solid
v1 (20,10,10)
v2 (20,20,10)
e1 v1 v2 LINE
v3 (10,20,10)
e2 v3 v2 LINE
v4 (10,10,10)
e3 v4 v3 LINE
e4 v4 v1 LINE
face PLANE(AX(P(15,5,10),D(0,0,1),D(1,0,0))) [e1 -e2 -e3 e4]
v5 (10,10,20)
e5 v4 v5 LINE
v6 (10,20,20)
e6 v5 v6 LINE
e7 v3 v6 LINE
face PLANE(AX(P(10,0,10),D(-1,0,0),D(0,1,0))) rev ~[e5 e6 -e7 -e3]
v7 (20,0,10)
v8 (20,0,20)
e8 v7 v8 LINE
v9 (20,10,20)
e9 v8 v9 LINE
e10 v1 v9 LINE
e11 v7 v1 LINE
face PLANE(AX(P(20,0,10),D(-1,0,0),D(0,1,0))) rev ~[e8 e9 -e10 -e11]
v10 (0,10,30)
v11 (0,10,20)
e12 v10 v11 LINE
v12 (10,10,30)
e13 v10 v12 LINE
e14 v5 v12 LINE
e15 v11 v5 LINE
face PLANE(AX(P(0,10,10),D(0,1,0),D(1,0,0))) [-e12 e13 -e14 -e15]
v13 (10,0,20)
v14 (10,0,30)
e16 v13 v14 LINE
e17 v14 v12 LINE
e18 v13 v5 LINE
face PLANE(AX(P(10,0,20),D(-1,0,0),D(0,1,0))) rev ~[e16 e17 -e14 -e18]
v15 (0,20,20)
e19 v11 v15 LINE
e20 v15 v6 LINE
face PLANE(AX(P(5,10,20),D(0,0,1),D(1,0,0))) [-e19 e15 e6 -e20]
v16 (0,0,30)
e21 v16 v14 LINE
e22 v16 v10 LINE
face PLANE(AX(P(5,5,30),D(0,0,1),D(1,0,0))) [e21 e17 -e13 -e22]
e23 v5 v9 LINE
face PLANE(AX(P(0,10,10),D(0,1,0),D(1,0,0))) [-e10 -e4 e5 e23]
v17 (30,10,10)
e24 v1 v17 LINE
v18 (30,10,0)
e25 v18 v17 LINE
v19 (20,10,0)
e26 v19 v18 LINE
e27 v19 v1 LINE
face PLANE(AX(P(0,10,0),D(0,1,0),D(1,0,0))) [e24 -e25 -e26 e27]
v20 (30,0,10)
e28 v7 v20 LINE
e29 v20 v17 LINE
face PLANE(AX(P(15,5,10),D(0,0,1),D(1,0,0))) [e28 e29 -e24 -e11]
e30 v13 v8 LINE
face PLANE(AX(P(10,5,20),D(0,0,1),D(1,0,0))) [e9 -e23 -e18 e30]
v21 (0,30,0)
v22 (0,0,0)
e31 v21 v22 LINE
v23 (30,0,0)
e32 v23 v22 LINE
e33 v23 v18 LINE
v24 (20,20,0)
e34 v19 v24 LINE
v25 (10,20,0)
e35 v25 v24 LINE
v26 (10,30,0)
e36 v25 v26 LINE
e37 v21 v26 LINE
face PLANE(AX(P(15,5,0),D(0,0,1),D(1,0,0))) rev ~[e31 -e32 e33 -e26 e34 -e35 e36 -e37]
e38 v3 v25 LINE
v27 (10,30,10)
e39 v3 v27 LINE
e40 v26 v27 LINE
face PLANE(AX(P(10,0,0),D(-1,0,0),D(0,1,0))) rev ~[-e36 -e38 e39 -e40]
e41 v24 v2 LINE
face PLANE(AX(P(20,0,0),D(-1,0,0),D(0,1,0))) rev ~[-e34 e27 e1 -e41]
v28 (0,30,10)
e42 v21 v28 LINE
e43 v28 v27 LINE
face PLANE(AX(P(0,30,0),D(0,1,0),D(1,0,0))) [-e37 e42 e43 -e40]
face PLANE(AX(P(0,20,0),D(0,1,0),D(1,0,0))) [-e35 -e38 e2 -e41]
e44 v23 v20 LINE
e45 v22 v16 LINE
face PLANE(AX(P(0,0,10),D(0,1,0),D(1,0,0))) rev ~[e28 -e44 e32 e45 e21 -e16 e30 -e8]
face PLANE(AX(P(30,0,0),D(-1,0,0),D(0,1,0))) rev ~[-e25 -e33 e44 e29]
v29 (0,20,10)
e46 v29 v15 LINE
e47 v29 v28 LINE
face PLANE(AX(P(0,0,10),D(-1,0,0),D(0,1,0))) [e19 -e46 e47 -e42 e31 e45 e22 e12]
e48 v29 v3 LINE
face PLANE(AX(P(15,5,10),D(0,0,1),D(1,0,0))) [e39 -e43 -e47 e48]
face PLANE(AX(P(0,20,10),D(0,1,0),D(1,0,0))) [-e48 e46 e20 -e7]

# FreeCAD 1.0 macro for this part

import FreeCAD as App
import Part
import Sketcher

V = App.Vector
Q = App.Units.Quantity

doc = App.newDocument("Part")
body = doc.addObject("PartDesign::Body", "Body")

sketch1 = body.newObject("Sketcher::SketchObject", "Sketch")
sketch1.AttachmentSupport = (doc.getObject("XY_Plane"), [""])
sketch1.MapMode = "FlatFace"
sketch1.addGeometry(Part.LineSegment(V(0, 10, 0), V(0, 0, 0)), False)
sketch1.addGeometry(Part.LineSegment(V(0, 0, 0), V(30, 0, 0)), False)
sketch1.addGeometry(Part.LineSegment(V(30, 0, 0), V(30, 10, 0)), False)
sketch1.addGeometry(Part.LineSegment(V(30, 10, 0), V(0, 10, 0)), False)
sketch1.addConstraint(Sketcher.Constraint("Coincident", 0, 2, 1, 1))
sketch1.addConstraint(Sketcher.Constraint("Coincident", 1, 2, 2, 1))
sketch1.addConstraint(Sketcher.Constraint("Coincident", 2, 2, 3, 1))
sketch1.addConstraint(Sketcher.Constraint("Coincident", 3, 2, 0, 1))
sketch1.addConstraint(Sketcher.Constraint("Vertical", 0))
sketch1.addConstraint(Sketcher.Constraint("Horizontal", 1))
sketch1.addConstraint(Sketcher.Constraint("Vertical", 2))
sketch1.addConstraint(Sketcher.Constraint("Horizontal", 3))
sketch1.addConstraint(Sketcher.Constraint("Coincident", 0, 2, -1, 1))
sketch1.addConstraint(Sketcher.Constraint("DistanceX", 1, 1, 1, 2, Q("30 mm")))
sketch1.addConstraint(Sketcher.Constraint("DistanceY", 0, 2, 0, 1, Q("10 mm")))
pad1 = body.newObject("PartDesign::Pad", "Pad")
pad1.Profile = sketch1
pad1.Length = 10
body2 = doc.addObject("PartDesign::Body", "Body001")

sketch2 = body2.newObject("Sketcher::SketchObject", "Sketch001")
sketch2.AttachmentSupport = (doc.getObject("XY_Plane001"), [""])
sketch2.MapMode = "FlatFace"
sketch2.addGeometry(Part.LineSegment(V(0, 30, 0), V(0, 0, 0)), False)
sketch2.addGeometry(Part.LineSegment(V(0, 0, 0), V(10, 0, 0)), False)
sketch2.addGeometry(Part.LineSegment(V(10, 0, 0), V(10, 30, 0)), False)
sketch2.addGeometry(Part.LineSegment(V(10, 30, 0), V(0, 30, 0)), False)
sketch2.addConstraint(Sketcher.Constraint("Coincident", 0, 2, 1, 1))
sketch2.addConstraint(Sketcher.Constraint("Coincident", 1, 2, 2, 1))
sketch2.addConstraint(Sketcher.Constraint("Coincident", 2, 2, 3, 1))
sketch2.addConstraint(Sketcher.Constraint("Coincident", 3, 2, 0, 1))
sketch2.addConstraint(Sketcher.Constraint("Vertical", 0))
sketch2.addConstraint(Sketcher.Constraint("Horizontal", 1))
sketch2.addConstraint(Sketcher.Constraint("Vertical", 2))
sketch2.addConstraint(Sketcher.Constraint("Horizontal", 3))
sketch2.addConstraint(Sketcher.Constraint("Coincident", 0, 2, -1, 1))
sketch2.addConstraint(Sketcher.Constraint("DistanceX", 1, 1, 1, 2, Q("10 mm")))
sketch2.addConstraint(Sketcher.Constraint("DistanceY", 0, 2, 0, 1, Q("30 mm")))
pad2 = body2.newObject("PartDesign::Pad", "Pad001")
pad2.Profile = sketch2
pad2.Length = 10
body3 = doc.addObject("PartDesign::Body", "Body002")

sketch3 = body3.newObject("Sketcher::SketchObject", "Sketch002")
sketch3.AttachmentSupport = (doc.getObject("XY_Plane002"), [""])
sketch3.MapMode = "FlatFace"
sketch3.addGeometry(Part.LineSegment(V(0, 20, 0), V(0, 0, 0)), False)
sketch3.addGeometry(Part.LineSegment(V(0, 0, 0), V(20, 0, 0)), False)
sketch3.addGeometry(Part.LineSegment(V(20, 0, 0), V(20, 20, 0)), False)
sketch3.addGeometry(Part.LineSegment(V(20, 20, 0), V(0, 20, 0)), False)
sketch3.addConstraint(Sketcher.Constraint("Coincident", 0, 2, 1, 1))
sketch3.addConstraint(Sketcher.Constraint("Coincident", 1, 2, 2, 1))
sketch3.addConstraint(Sketcher.Constraint("Coincident", 2, 2, 3, 1))
sketch3.addConstraint(Sketcher.Constraint("Coincident", 3, 2, 0, 1))
sketch3.addConstraint(Sketcher.Constraint("Vertical", 0))
sketch3.addConstraint(Sketcher.Constraint("Horizontal", 1))
sketch3.addConstraint(Sketcher.Constraint("Vertical", 2))
sketch3.addConstraint(Sketcher.Constraint("Horizontal", 3))
sketch3.addConstraint(Sketcher.Constraint("Coincident", 0, 2, -1, 1))
sketch3.addConstraint(Sketcher.Constraint("Equal", 3, 0))
sketch3.addConstraint(Sketcher.Constraint("DistanceX", 1, 1, 1, 2, Q("20 mm")))
pad3 = body3.newObject("PartDesign::Pad", "Pad002")
pad3.Profile = sketch3
pad3.Length = 10
body4 = doc.addObject("PartDesign::Body", "Body003")

sketch4 = body4.newObject("Sketcher::SketchObject", "Sketch003")
sketch4.AttachmentSupport = (doc.getObject("XY_Plane003"), [""])
sketch4.MapMode = "FlatFace"
sketch4.AttachmentOffset = App.Placement(V(0, 0, 10), App.Rotation())
sketch4.addGeometry(Part.LineSegment(V(0, 10, 0), V(0, 0, 0)), False)
sketch4.addGeometry(Part.LineSegment(V(0, 0, 0), V(20, 0, 0)), False)
sketch4.addGeometry(Part.LineSegment(V(20, 0, 0), V(20, 10, 0)), False)
sketch4.addGeometry(Part.LineSegment(V(20, 10, 0), V(0, 10, 0)), False)
sketch4.addConstraint(Sketcher.Constraint("Coincident", 0, 2, 1, 1))
sketch4.addConstraint(Sketcher.Constraint("Coincident", 1, 2, 2, 1))
sketch4.addConstraint(Sketcher.Constraint("Coincident", 2, 2, 3, 1))
sketch4.addConstraint(Sketcher.Constraint("Coincident", 3, 2, 0, 1))
sketch4.addConstraint(Sketcher.Constraint("Vertical", 0))
sketch4.addConstraint(Sketcher.Constraint("Horizontal", 1))
sketch4.addConstraint(Sketcher.Constraint("Vertical", 2))
sketch4.addConstraint(Sketcher.Constraint("Horizontal", 3))
sketch4.addConstraint(Sketcher.Constraint("Coincident", 0, 2, -1, 1))
sketch4.addConstraint(Sketcher.Constraint("DistanceX", 1, 1, 1, 2, Q("20 mm")))
sketch4.addConstraint(Sketcher.Constraint("DistanceY", 0, 2, 0, 1, Q("10 mm")))
pad4 = body4.newObject("PartDesign::Pad", "Pad003")
pad4.Profile = sketch4
pad4.Length = 10
body5 = doc.addObject("PartDesign::Body", "Body004")

sketch5 = body5.newObject("Sketcher::SketchObject", "Sketch004")
sketch5.AttachmentSupport = (doc.getObject("XY_Plane004"), [""])
sketch5.MapMode = "FlatFace"
sketch5.AttachmentOffset = App.Placement(V(0, 0, 10), App.Rotation())
sketch5.addGeometry(Part.LineSegment(V(0, 20, 0), V(0, 0, 0)), False)
sketch5.addGeometry(Part.LineSegment(V(0, 0, 0), V(10, 0, 0)), False)
sketch5.addGeometry(Part.LineSegment(V(10, 0, 0), V(10, 20, 0)), False)
sketch5.addGeometry(Part.LineSegment(V(10, 20, 0), V(0, 20, 0)), False)
sketch5.addConstraint(Sketcher.Constraint("Coincident", 0, 2, 1, 1))
sketch5.addConstraint(Sketcher.Constraint("Coincident", 1, 2, 2, 1))
sketch5.addConstraint(Sketcher.Constraint("Coincident", 2, 2, 3, 1))
sketch5.addConstraint(Sketcher.Constraint("Coincident", 3, 2, 0, 1))
sketch5.addConstraint(Sketcher.Constraint("Vertical", 0))
sketch5.addConstraint(Sketcher.Constraint("Horizontal", 1))
sketch5.addConstraint(Sketcher.Constraint("Vertical", 2))
sketch5.addConstraint(Sketcher.Constraint("Horizontal", 3))
sketch5.addConstraint(Sketcher.Constraint("Coincident", 0, 2, -1, 1))
sketch5.addConstraint(Sketcher.Constraint("DistanceX", 1, 1, 1, 2, Q("10 mm")))
sketch5.addConstraint(Sketcher.Constraint("DistanceY", 0, 2, 0, 1, Q("20 mm")))
pad5 = body5.newObject("PartDesign::Pad", "Pad004")
pad5.Profile = sketch5
pad5.Length = 10
body6 = doc.addObject("PartDesign::Body", "Body005")
body6.AllowCompound = True

sketch6 = body6.newObject("Sketcher::SketchObject", "Sketch005")
sketch6.AttachmentSupport = (doc.getObject("XY_Plane005"), [""])
sketch6.MapMode = "FlatFace"
sketch6.AttachmentOffset = App.Placement(V(0, 0, 20), App.Rotation())
sketch6.addGeometry(Part.LineSegment(V(0, 10, 0), V(0, 0, 0)), False)
sketch6.addGeometry(Part.LineSegment(V(0, 0, 0), V(10, 0, 0)), False)
sketch6.addGeometry(Part.LineSegment(V(10, 0, 0), V(10, 10, 0)), False)
sketch6.addGeometry(Part.LineSegment(V(10, 10, 0), V(0, 10, 0)), False)
sketch6.addConstraint(Sketcher.Constraint("Coincident", 0, 2, 1, 1))
sketch6.addConstraint(Sketcher.Constraint("Coincident", 1, 2, 2, 1))
sketch6.addConstraint(Sketcher.Constraint("Coincident", 2, 2, 3, 1))
sketch6.addConstraint(Sketcher.Constraint("Coincident", 3, 2, 0, 1))
sketch6.addConstraint(Sketcher.Constraint("Vertical", 0))
sketch6.addConstraint(Sketcher.Constraint("Horizontal", 1))
sketch6.addConstraint(Sketcher.Constraint("Vertical", 2))
sketch6.addConstraint(Sketcher.Constraint("Horizontal", 3))
sketch6.addConstraint(Sketcher.Constraint("Coincident", 0, 2, -1, 1))
sketch6.addConstraint(Sketcher.Constraint("Equal", 3, 0))
sketch6.addConstraint(Sketcher.Constraint("DistanceX", 1, 1, 1, 2, Q("10 mm")))
pad6 = body6.newObject("PartDesign::Pad", "Pad005")
pad6.Profile = sketch6
pad6.Length = 10
doc.recompute()

boolean = body6.newObject("PartDesign::Boolean", "Boolean")
boolean.Type = "Fuse"
boolean.addObjects([body])
doc.recompute()

boolean2 = body6.newObject("PartDesign::Boolean", "Boolean001")
boolean2.Type = "Fuse"
boolean2.addObjects([body2])
doc.recompute()

boolean3 = body6.newObject("PartDesign::Boolean", "Boolean002")
boolean3.Type = "Fuse"
boolean3.addObjects([body3])
doc.recompute()

boolean4 = body6.newObject("PartDesign::Boolean", "Boolean003")
boolean4.Type = "Fuse"
boolean4.addObjects([body4])
doc.recompute()

boolean5 = body6.newObject("PartDesign::Boolean", "Boolean004")
boolean5.Type = "Fuse"
boolean5.addObjects([body5])

doc.recompute()
